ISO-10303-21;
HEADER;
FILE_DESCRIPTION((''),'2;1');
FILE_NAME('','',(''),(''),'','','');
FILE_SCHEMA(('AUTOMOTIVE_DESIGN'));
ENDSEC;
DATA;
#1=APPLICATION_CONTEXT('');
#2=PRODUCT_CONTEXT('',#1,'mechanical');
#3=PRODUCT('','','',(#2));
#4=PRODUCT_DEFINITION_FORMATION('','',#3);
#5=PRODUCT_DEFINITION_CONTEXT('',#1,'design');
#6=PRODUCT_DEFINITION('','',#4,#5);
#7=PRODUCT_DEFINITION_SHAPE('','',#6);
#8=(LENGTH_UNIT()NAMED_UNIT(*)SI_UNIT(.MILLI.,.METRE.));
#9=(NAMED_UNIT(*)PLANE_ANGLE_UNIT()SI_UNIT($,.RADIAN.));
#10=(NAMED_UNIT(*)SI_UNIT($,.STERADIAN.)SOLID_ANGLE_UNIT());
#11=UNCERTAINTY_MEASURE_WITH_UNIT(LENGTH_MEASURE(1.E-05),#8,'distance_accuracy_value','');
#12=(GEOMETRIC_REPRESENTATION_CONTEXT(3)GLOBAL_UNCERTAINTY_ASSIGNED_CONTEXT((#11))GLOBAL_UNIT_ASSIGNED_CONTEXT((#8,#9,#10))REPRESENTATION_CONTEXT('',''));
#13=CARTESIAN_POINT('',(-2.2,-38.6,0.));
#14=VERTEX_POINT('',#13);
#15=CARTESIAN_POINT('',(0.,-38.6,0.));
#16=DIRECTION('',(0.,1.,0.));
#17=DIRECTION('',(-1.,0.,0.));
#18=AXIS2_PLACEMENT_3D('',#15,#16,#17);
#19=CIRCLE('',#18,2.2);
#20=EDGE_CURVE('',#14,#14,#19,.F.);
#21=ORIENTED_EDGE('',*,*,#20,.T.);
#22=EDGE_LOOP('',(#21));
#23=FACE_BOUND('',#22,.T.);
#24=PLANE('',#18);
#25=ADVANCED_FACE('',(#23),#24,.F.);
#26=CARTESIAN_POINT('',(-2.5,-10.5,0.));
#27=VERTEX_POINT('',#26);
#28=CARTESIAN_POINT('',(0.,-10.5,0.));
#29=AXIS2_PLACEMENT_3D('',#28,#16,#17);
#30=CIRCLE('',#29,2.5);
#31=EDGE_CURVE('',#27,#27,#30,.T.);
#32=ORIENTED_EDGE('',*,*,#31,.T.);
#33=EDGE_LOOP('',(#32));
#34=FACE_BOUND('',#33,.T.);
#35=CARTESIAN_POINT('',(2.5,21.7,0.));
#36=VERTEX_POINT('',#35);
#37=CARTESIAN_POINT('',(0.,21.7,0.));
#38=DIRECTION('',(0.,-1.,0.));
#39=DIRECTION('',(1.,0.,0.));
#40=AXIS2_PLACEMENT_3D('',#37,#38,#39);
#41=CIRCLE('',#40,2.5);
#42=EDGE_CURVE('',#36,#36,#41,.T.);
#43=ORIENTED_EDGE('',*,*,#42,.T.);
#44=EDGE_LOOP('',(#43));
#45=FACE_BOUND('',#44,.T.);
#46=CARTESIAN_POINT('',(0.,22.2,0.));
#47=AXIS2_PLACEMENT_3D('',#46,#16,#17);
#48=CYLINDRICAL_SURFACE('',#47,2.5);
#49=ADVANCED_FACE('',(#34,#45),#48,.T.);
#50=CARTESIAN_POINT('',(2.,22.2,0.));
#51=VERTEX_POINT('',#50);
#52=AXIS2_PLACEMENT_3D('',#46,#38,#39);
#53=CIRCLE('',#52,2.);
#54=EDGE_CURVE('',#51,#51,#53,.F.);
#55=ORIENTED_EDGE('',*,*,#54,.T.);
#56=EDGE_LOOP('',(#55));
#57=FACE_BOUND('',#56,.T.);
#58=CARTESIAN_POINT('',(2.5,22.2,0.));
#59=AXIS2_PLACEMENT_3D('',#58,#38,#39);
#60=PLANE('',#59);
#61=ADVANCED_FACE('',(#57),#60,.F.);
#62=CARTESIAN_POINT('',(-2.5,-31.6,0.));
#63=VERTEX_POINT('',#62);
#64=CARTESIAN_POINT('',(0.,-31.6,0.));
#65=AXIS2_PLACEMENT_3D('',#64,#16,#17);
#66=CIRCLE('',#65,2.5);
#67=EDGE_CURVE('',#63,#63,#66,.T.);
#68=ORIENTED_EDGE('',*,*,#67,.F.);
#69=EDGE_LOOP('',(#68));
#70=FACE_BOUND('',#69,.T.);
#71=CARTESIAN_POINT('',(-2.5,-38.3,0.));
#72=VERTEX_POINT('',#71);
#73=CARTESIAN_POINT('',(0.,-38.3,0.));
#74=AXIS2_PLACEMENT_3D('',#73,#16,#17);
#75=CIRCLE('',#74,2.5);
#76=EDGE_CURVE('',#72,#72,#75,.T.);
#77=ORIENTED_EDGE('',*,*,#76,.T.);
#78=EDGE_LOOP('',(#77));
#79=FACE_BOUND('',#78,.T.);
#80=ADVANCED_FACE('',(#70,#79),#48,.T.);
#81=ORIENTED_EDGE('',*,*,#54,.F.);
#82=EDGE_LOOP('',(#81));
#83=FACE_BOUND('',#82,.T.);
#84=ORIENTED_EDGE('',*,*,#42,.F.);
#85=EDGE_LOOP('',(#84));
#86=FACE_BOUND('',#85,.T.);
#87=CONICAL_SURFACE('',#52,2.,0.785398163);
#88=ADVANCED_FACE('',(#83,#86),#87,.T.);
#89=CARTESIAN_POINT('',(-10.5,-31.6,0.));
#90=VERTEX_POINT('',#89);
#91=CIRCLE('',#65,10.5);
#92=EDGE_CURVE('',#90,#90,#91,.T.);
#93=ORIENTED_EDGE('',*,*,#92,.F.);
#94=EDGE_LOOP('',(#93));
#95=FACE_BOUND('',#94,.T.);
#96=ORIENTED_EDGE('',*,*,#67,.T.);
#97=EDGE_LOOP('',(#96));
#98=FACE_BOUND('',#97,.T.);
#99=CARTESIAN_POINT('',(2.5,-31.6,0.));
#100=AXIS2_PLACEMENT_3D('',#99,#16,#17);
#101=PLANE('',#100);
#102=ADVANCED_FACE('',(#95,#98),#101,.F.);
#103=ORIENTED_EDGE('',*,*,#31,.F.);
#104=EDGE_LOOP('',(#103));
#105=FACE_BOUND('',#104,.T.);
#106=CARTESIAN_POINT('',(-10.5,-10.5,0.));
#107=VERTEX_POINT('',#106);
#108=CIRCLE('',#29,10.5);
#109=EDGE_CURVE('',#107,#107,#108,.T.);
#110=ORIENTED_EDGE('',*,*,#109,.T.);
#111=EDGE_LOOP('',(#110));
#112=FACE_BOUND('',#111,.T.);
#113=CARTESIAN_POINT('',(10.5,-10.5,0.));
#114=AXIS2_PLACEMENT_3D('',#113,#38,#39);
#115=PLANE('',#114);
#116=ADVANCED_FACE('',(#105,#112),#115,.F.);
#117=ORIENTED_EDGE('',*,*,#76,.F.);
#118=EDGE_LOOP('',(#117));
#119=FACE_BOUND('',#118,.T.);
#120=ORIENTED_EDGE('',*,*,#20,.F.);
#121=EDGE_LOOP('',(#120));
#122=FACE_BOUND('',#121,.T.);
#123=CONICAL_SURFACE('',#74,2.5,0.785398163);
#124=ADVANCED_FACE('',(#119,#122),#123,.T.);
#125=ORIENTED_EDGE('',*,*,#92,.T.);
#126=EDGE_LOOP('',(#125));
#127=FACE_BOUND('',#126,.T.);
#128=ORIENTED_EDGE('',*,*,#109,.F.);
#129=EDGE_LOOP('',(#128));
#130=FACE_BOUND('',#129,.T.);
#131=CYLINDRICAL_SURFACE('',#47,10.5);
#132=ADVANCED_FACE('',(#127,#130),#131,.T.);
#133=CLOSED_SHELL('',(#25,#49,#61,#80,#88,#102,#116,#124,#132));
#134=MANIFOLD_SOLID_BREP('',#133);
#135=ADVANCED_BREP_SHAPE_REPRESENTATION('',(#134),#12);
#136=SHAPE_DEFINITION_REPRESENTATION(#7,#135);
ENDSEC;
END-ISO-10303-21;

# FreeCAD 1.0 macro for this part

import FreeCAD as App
import Part
import Sketcher

V = App.Vector
Q = App.Units.Quantity


def edges_at(feature, points):
    """Names of the edges that pass closest to the given points."""
    edges = feature.Shape.Edges
    near = lambda p: min(range(len(edges)), key=lambda i: edges[i].distToShape(Part.Vertex(*p))[0])
    return sorted({f"Edge{near(p) + 1}" for p in points})


def add_polygon(sketch, points):
    """Adds a closed chain of lines whose ends are joined by coincident constraints."""
    first, n = sketch.GeometryCount, len(points)
    for a, b in zip(points, points[1:] + points[:1]):
        sketch.addGeometry(Part.LineSegment(App.Vector(*a, 0), App.Vector(*b, 0)), False)
    for i in range(n):
        sketch.addConstraint(Sketcher.Constraint("Coincident", first + i, 2, first + (i + 1) % n, 1))

doc = App.newDocument("Part")
body = doc.addObject("PartDesign::Body", "Body")

# Sketch on XY plane
sketch1 = body.newObject("Sketcher::SketchObject", "Sketch")
sketch1.AttachmentSupport = (doc.getObject("XY_Plane"), [""])
sketch1.MapMode = "FlatFace"
add_polygon(sketch1, [(0, -38.6), (2.5, -38.6), (2.5, -31.6), (10.5, -31.6), (10.5, -10.5), (2.5, -10.5), (2.5, 22.2), (0, 22.2)])  # lines 0-7
sketch1.addConstraint(Sketcher.Constraint("Horizontal", 0))
sketch1.addConstraint(Sketcher.Constraint("Vertical", 1))
sketch1.addConstraint(Sketcher.Constraint("Horizontal", 2))
sketch1.addConstraint(Sketcher.Constraint("Vertical", 3))
sketch1.addConstraint(Sketcher.Constraint("Horizontal", 4))
sketch1.addConstraint(Sketcher.Constraint("Vertical", 5))
sketch1.addConstraint(Sketcher.Constraint("Horizontal", 6))
sketch1.addConstraint(Sketcher.Constraint("Vertical", 7))
sketch1.addConstraint(Sketcher.Constraint("PointOnObject", 6, 2, -2))
sketch1.addConstraint(Sketcher.Constraint("Vertical", 1, 2, 4, 2))
sketch1.addConstraint(Sketcher.Constraint("DistanceX", 2, 1, 2, 2, Q("8 mm")))
sketch1.addConstraint(Sketcher.Constraint("DistanceY", 1, 1, 1, 2, Q("7 mm")))
sketch1.addConstraint(Sketcher.Constraint("DistanceX", 0, 1, 0, 2, Q("2.5 mm")))
sketch1.addConstraint(Sketcher.Constraint("DistanceY", 3, 1, 3, 2, Q("21.1 mm")))
sketch1.addConstraint(Sketcher.Constraint("DistanceY", 5, 1, 5, 2, Q("32.7 mm")))
sketch1.addConstraint(Sketcher.Constraint("DistanceY", 0, 2, -1, 1, Q("38.6 mm")))
revolution = body.newObject("PartDesign::Revolution", "Revolution")
revolution.Profile = sketch1
revolution.ReferenceAxis = (sketch1, ["V_Axis"])
revolution.Angle = 360
doc.recompute()

chamfer = body.newObject("PartDesign::Chamfer", "Chamfer")
chamfer.Base = (revolution, edges_at(revolution, [(-2.5, -38.6, 0)]))
chamfer.Size = 0.3
doc.recompute()

chamfer2 = body.newObject("PartDesign::Chamfer", "Chamfer001")
chamfer2.Base = (chamfer, edges_at(chamfer, [(-2.5, 22.2, 0)]))
chamfer2.Size = 0.5

doc.recompute()
